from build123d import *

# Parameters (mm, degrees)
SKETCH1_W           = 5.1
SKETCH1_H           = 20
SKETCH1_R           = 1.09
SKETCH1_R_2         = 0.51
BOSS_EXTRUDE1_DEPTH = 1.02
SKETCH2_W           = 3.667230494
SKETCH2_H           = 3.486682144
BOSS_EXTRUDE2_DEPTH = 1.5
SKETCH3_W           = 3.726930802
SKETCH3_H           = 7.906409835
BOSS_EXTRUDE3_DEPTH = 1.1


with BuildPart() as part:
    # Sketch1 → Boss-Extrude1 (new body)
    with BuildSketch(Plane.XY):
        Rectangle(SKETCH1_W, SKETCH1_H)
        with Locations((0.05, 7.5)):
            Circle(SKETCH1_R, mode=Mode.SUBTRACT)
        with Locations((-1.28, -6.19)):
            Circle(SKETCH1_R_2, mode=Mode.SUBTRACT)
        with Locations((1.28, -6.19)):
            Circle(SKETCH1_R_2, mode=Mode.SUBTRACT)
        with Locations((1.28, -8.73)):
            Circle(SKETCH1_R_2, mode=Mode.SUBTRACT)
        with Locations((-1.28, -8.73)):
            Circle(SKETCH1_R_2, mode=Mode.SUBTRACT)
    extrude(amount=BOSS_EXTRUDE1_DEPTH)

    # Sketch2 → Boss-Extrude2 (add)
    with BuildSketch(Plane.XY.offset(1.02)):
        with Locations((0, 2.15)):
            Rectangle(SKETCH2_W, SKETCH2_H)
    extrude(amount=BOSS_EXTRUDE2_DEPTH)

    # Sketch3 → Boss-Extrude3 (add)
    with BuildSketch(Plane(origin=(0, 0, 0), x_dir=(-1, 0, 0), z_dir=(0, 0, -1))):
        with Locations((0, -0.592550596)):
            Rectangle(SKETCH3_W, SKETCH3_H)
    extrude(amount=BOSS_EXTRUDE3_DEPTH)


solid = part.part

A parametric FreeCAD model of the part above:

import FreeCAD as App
import Part
import Sketcher

V = App.Vector
Q = App.Units.Quantity


def add_polygon(sketch, points):
    """Adds a closed chain of lines whose ends are joined by coincident constraints."""
    first, n = sketch.GeometryCount, len(points)
    for a, b in zip(points, points[1:] + points[:1]):
        sketch.addGeometry(Part.LineSegment(App.Vector(*a, 0), App.Vector(*b, 0)), False)
    for i in range(n):
        sketch.addConstraint(Sketcher.Constraint("Coincident", first + i, 2, first + (i + 1) % n, 1))

doc = App.newDocument("Part")
body = doc.addObject("PartDesign::Body", "Body")

# Sketch on XY plane
sketch1 = doc.addObject("Sketcher::SketchObject", "Sketch")
body.addObject(sketch1)
sketch1.AttachmentSupport = (doc.XY_Plane, [""])
sketch1.MapMode = "FlatFace"
add_polygon(sketch1, [(-2.5, 10), (-2.5, -10), (2.5, -10), (2.5, 10)])  # lines 0-3
sketch1.addGeometry(Part.Circle(V(-1.3, -8.7, 0), V(0, 0, 1), 0.5), False)  # 4
sketch1.addGeometry(Part.Circle(V(-1.3, -6.2, 0), V(0, 0, 1), 0.5), False)  # 5
sketch1.addGeometry(Part.Circle(V(1.3, -8.7, 0), V(0, 0, 1), 0.5), False)  # 6
sketch1.addGeometry(Part.Circle(V(1.3, -6.2, 0), V(0, 0, 1), 0.5), False)  # 7
sketch1.addGeometry(Part.Circle(V(0.1, 7.5, 0), V(0, 0, 1), 1.1), False)  # 8
sketch1.addConstraint([
    Sketcher.Constraint("Vertical", 0),
    Sketcher.Constraint("Horizontal", 1),
    Sketcher.Constraint("Vertical", 2),
    Sketcher.Constraint("Horizontal", 3),
    Sketcher.Constraint("Equal", 4, 5),
    Sketcher.Constraint("Equal", 5, 6),
    Sketcher.Constraint("Equal", 6, 7),
    Sketcher.Constraint("Symmetric", 0, 2, 2, 2, -1, 1),
    Sketcher.Constraint("Symmetric", 4, 3, 6, 3, -2),
    Sketcher.Constraint("Symmetric", 5, 3, 7, 3, -2),
    Sketcher.Constraint("Vertical", 4, 3, 5, 3),
    Sketcher.Constraint("Diameter", 4, Q("1.02 mm")),
    Sketcher.Constraint("Diameter", 8, Q("2.18 mm")),
    Sketcher.Constraint("DistanceY", 0, 2, 0, 1, Q("20 mm")),
    Sketcher.Constraint("DistanceX", 1, 1, 1, 2, Q("5.1 mm")),
    Sketcher.Constraint("DistanceY", -1, 1, 8, 3, Q("7.5 mm")),
    Sketcher.Constraint("DistanceX", 0, 2, 8, 3, Q("2.6 mm")),
    Sketcher.Constraint("DistanceX", 4, 3, -1, 1, Q("1.28 mm")),
    Sketcher.Constraint("DistanceY", 4, 3, -1, 1, Q("8.73 mm")),
    Sketcher.Constraint("DistanceY", 5, 3, -1, 1, Q("6.19 mm")),
])
pad1 = doc.addObject("PartDesign::Pad", "Pad")
body.addObject(pad1)
pad1.Profile = sketch1
pad1.Length = 1.02

# Sketch on XY plane
sketch2 = doc.addObject("Sketcher::SketchObject", "Sketch001")
body.addObject(sketch2)
sketch2.AttachmentSupport = (doc.XY_Plane, [""])
sketch2.MapMode = "FlatFace"
sketch2.AttachmentOffset = App.Placement(V(0, 0, 1.02), App.Rotation())
add_polygon(sketch2, [(-1.8, 3.9), (-1.8, 0.4), (1.8, 0.4), (1.8, 3.9)])  # lines 0-3
sketch2.addConstraint([
    Sketcher.Constraint("Vertical", 0),
    Sketcher.Constraint("Horizontal", 1),
    Sketcher.Constraint("Vertical", 2),
    Sketcher.Constraint("Horizontal", 3),
    Sketcher.Constraint("DistanceX", 1, 1, 1, 2, Q("3.66723 mm")),
    Sketcher.Constraint("DistanceY", 0, 2, 0, 1, Q("3.486682 mm")),
    Sketcher.Constraint("DistanceY", -1, 1, 0, 2, Q("0.406659 mm")),
    Sketcher.Constraint("DistanceX", 0, 2, -1, 1, Q("1.833615 mm")),
])
pad2 = doc.addObject("PartDesign::Pad", "Pad001")
body.addObject(pad2)
pad2.Profile = sketch2
pad2.Length = 1.5

# Sketch on XY plane
sketch3 = doc.addObject("Sketcher::SketchObject", "Sketch002")
body.addObject(sketch3)
sketch3.AttachmentSupport = (doc.XY_Plane, [""])
sketch3.MapMode = "FlatFace"
add_polygon(sketch3, [(1.9, 3.4), (1.9, -4.5), (-1.9, -4.5), (-1.9, 3.4)])  # lines 0-3
sketch3.addConstraint([
    Sketcher.Constraint("Vertical", 0),
    Sketcher.Constraint("Horizontal", 1),
    Sketcher.Constraint("Vertical", 2),
    Sketcher.Constraint("Horizontal", 3),
    Sketcher.Constraint("DistanceX", 1, 2, 1, 1, Q("3.726931 mm")),
    Sketcher.Constraint("DistanceY", 0, 2, 0, 1, Q("7.90641 mm")),
    Sketcher.Constraint("DistanceX", -1, 1, 0, 2, Q("1.863465 mm")),
    Sketcher.Constraint("DistanceY", 0, 2, -1, 1, Q("4.545756 mm")),
])
pad3 = doc.addObject("PartDesign::Pad", "Pad002")
body.addObject(pad3)
pad3.Profile = sketch3
pad3.Length = 1.1
pad3.Reversed = True

doc.recompute()
